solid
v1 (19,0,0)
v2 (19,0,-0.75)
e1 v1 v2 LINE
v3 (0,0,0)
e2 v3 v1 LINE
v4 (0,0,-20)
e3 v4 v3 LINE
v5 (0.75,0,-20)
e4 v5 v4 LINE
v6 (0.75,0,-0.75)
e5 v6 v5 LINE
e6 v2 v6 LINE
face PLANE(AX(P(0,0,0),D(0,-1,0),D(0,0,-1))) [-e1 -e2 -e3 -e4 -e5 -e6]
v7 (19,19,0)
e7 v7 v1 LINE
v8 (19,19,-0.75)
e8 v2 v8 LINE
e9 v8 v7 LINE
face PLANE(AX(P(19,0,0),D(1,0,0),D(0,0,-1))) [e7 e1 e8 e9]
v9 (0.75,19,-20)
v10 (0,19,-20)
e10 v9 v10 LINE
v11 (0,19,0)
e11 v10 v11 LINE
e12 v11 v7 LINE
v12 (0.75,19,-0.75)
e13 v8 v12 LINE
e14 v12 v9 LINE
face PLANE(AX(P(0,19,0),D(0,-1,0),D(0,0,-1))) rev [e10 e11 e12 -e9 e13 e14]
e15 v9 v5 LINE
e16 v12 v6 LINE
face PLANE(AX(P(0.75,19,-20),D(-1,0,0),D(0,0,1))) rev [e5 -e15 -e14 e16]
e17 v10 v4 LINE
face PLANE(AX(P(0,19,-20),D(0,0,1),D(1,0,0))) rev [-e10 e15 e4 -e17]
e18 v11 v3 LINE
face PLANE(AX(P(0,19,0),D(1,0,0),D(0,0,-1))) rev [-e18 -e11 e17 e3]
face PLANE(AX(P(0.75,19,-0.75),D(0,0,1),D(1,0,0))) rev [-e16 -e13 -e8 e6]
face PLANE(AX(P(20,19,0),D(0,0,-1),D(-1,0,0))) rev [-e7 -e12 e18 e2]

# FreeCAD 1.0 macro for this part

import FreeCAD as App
import Part
import Sketcher

V = App.Vector

doc = App.newDocument("Part")
body = doc.addObject("PartDesign::Body", "Body")

# Sketch on XZ plane
sketch1 = body.newObject("Sketcher::SketchObject", "Sketch")
sketch1.AttachmentSupport = (doc.getObject("XZ_Plane"), [""])
sketch1.MapMode = "FlatFace"
sketch1.addGeometry(Part.LineSegment(V(0, -20, 0), V(0, 0, 0)), False)
sketch1.addGeometry(Part.LineSegment(V(0, 0, 0), V(20, 0, 0)), False)
sketch1.addGeometry(Part.LineSegment(V(20, 0, 0), V(20, -0.75, 0)), False)
sketch1.addGeometry(Part.LineSegment(V(20, -0.75, 0), V(0.75, -0.75, 0)), False)
sketch1.addGeometry(Part.LineSegment(V(0.75, -0.75, 0), V(0.75, -20, 0)), False)
sketch1.addGeometry(Part.LineSegment(V(0.75, -20, 0), V(0, -20, 0)), False)
sketch1.addConstraint(Sketcher.Constraint("Coincident", 0, 2, 1, 1))
sketch1.addConstraint(Sketcher.Constraint("Coincident", 1, 2, 2, 1))
sketch1.addConstraint(Sketcher.Constraint("Coincident", 2, 2, 3, 1))
sketch1.addConstraint(Sketcher.Constraint("Coincident", 3, 2, 4, 1))
sketch1.addConstraint(Sketcher.Constraint("Coincident", 4, 2, 5, 1))
sketch1.addConstraint(Sketcher.Constraint("Coincident", 5, 2, 0, 1))
sketch1.addConstraint(Sketcher.Constraint("Vertical", 0))
sketch1.addConstraint(Sketcher.Constraint("Horizontal", 1))
sketch1.addConstraint(Sketcher.Constraint("Vertical", 2))
sketch1.addConstraint(Sketcher.Constraint("Horizontal", 3))
sketch1.addConstraint(Sketcher.Constraint("Vertical", 4))
sketch1.addConstraint(Sketcher.Constraint("Horizontal", 5))
sketch1.addConstraint(Sketcher.Constraint("Coincident", 0, 2, -1, 1))
sketch1.addConstraint(Sketcher.Constraint("Equal", 1, 0))
sketch1.addConstraint(Sketcher.Constraint("Equal", 5, 2))
sketch1.addConstraint(Sketcher.Constraint("DistanceX", 1, 1, 1, 2, 20.0))
sketch1.addConstraint(Sketcher.Constraint("DistanceX", 3, 2, 3, 1, 19.25))
pad1 = body.newObject("PartDesign::Pad", "Pad")
pad1.Profile = sketch1
pad1.Length = 19
pad1.Reversed = True

# Sketch on YZ plane
sketch2 = body.newObject("Sketcher::SketchObject", "Sketch001")
sketch2.AttachmentSupport = (doc.getObject("YZ_Plane"), [""])
sketch2.MapMode = "FlatFace"
sketch2.AttachmentOffset = App.Placement(V(0, 0, 20), App.Rotation())
sketch2.addGeometry(Part.LineSegment(V(19, 0, 0), V(0, 0, 0)), False)
sketch2.addGeometry(Part.LineSegment(V(0, 0, 0), V(0, -0.75, 0)), False)
sketch2.addGeometry(Part.LineSegment(V(0, -0.75, 0), V(19, -0.75, 0)), False)
sketch2.addGeometry(Part.LineSegment(V(19, -0.75, 0), V(19, 0, 0)), False)
sketch2.addConstraint(Sketcher.Constraint("Coincident", 0, 2, 1, 1))
sketch2.addConstraint(Sketcher.Constraint("Coincident", 1, 2, 2, 1))
sketch2.addConstraint(Sketcher.Constraint("Coincident", 2, 2, 3, 1))
sketch2.addConstraint(Sketcher.Constraint("Coincident", 3, 2, 0, 1))
sketch2.addConstraint(Sketcher.Constraint("Horizontal", 0))
sketch2.addConstraint(Sketcher.Constraint("Vertical", 1))
sketch2.addConstraint(Sketcher.Constraint("Horizontal", 2))
sketch2.addConstraint(Sketcher.Constraint("Vertical", 3))
sketch2.addConstraint(Sketcher.Constraint("Coincident", 0, 2, -1, 1))
sketch2.addConstraint(Sketcher.Constraint("DistanceX", 0, 2, 0, 1, 19.0))
sketch2.addConstraint(Sketcher.Constraint("DistanceY", 1, 2, 1, 1, 0.75))
pocket1 = body.newObject("PartDesign::Pocket", "Pocket")
pocket1.Profile = sketch2
pocket1.Length = 1

doc.recompute()
